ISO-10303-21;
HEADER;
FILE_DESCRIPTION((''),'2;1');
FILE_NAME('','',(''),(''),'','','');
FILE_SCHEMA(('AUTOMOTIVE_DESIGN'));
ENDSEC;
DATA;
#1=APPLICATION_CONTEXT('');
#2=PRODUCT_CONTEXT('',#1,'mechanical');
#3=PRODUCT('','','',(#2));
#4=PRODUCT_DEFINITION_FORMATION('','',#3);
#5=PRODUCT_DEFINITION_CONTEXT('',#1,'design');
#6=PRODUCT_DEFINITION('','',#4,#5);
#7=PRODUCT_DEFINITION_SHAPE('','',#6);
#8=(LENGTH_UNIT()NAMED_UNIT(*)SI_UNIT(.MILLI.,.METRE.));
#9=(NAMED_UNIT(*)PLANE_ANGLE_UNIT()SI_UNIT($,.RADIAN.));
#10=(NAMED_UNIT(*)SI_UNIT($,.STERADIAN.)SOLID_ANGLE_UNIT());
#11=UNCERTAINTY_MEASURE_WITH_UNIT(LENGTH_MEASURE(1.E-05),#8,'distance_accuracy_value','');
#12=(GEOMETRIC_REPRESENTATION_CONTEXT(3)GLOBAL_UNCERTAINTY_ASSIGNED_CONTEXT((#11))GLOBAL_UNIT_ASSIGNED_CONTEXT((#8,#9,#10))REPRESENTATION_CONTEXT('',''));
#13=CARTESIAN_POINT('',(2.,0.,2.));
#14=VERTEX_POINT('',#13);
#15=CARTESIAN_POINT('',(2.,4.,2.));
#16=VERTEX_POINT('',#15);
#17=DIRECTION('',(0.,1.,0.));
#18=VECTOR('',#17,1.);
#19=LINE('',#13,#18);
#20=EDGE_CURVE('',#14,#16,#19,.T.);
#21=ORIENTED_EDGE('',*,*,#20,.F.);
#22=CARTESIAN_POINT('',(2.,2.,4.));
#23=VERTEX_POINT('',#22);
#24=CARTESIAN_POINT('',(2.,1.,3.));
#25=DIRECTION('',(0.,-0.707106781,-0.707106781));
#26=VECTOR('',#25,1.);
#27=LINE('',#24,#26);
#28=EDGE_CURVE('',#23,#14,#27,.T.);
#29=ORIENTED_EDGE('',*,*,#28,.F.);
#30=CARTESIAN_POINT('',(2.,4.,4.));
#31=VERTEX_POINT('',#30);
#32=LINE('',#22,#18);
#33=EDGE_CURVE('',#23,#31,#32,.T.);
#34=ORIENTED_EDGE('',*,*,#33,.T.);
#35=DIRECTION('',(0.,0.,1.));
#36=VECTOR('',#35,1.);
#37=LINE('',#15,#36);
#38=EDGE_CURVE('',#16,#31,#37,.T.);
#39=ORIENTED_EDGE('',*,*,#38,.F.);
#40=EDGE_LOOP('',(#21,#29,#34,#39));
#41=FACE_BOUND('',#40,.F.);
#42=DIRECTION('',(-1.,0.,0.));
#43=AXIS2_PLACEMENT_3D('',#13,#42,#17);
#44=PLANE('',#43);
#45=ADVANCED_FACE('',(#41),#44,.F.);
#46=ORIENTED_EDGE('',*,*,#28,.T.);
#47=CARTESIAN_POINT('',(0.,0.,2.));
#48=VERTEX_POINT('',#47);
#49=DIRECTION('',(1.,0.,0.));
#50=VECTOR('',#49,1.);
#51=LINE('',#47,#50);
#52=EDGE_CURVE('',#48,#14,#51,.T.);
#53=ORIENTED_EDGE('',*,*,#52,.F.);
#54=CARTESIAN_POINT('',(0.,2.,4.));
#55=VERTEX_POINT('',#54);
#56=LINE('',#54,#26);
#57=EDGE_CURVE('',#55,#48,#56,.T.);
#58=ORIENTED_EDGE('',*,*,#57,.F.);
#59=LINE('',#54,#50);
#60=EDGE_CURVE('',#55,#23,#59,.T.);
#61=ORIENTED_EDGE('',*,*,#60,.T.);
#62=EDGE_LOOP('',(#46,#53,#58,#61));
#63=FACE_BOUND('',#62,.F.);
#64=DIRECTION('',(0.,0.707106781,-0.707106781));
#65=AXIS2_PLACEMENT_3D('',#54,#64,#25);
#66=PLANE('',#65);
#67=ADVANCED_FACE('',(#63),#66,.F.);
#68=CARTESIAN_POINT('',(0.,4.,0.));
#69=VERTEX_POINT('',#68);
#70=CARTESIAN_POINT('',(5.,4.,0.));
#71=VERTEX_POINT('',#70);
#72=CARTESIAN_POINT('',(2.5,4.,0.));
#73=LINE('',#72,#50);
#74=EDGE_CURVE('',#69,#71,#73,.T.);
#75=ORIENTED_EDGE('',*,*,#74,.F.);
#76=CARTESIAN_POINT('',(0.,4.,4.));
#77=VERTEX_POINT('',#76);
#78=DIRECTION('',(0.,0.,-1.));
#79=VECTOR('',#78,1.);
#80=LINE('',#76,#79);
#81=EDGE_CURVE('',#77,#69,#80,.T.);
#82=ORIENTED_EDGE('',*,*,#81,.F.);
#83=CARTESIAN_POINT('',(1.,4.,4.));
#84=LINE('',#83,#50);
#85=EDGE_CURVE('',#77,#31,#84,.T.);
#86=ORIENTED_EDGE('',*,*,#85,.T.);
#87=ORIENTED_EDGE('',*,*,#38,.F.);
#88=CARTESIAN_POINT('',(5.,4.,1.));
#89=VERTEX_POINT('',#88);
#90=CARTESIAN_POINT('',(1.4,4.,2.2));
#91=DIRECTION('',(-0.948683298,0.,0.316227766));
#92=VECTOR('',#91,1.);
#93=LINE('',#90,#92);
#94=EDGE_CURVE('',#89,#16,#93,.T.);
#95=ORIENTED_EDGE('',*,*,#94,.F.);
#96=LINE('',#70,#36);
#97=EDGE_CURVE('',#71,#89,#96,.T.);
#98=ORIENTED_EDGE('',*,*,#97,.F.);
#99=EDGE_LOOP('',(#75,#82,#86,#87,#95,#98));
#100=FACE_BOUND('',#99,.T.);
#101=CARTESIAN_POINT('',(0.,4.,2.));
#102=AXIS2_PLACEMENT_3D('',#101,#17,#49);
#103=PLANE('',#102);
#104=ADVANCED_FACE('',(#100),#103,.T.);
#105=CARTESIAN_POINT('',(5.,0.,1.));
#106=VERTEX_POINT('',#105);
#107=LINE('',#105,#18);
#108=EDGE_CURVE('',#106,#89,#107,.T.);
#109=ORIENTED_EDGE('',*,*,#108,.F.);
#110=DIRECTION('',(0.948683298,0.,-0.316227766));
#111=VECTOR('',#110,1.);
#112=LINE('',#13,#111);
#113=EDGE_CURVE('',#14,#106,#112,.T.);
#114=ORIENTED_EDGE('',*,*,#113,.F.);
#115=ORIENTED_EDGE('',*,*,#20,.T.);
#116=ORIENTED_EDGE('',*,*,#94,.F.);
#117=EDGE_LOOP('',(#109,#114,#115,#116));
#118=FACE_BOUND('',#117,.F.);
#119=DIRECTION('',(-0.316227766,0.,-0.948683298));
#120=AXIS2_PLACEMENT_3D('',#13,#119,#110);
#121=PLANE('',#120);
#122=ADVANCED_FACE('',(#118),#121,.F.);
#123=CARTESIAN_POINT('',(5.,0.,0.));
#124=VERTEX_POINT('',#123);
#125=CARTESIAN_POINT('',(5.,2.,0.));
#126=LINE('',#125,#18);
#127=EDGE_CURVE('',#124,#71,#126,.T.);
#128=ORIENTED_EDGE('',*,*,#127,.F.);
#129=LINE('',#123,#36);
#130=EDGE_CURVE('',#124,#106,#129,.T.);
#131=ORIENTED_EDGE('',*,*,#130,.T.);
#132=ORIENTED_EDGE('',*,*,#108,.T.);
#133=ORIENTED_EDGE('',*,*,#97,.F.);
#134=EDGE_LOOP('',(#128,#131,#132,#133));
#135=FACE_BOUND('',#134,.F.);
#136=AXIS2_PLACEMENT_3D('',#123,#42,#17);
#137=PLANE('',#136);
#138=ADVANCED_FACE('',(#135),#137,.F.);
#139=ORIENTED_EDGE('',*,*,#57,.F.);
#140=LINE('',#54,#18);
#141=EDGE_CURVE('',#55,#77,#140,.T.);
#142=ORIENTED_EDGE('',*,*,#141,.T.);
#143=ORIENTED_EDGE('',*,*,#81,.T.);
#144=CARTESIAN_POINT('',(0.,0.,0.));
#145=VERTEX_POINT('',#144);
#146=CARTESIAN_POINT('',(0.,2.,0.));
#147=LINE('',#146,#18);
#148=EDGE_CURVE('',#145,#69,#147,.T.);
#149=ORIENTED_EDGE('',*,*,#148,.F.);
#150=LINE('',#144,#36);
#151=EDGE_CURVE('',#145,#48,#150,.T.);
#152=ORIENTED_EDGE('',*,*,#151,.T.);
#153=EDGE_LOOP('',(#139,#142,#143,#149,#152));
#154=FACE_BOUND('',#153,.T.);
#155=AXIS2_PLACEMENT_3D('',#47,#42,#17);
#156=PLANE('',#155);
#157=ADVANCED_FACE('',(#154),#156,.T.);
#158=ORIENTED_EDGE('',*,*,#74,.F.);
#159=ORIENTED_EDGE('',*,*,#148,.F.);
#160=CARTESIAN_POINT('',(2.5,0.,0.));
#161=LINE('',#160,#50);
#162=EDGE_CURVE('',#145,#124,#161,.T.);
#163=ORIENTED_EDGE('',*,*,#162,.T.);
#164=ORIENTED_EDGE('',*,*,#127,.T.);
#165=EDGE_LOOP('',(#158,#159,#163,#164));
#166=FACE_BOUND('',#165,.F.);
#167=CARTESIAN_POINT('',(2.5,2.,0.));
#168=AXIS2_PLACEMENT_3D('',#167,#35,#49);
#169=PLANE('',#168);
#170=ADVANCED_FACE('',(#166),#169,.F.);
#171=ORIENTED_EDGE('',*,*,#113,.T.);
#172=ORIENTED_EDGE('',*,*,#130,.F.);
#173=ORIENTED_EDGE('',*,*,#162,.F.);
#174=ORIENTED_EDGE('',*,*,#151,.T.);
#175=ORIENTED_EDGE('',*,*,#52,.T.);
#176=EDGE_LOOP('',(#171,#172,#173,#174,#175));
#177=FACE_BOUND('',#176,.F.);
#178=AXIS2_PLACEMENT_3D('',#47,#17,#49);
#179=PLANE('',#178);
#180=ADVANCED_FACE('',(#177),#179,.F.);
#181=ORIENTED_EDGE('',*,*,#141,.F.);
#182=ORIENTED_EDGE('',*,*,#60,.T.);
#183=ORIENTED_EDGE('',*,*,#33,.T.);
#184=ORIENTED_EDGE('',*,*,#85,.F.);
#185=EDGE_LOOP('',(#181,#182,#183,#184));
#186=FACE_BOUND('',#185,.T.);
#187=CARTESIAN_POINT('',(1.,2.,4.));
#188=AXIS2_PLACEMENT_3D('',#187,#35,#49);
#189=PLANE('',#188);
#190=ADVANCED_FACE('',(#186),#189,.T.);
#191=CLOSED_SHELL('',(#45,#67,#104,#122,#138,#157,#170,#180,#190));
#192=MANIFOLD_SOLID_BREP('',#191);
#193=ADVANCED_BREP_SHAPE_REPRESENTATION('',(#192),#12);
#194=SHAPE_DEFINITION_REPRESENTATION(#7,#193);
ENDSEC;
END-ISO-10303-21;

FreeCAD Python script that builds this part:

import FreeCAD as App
import Part
import Sketcher

V = App.Vector
Q = App.Units.Quantity


def add_polygon(sketch, points):
    """Adds a closed chain of lines whose ends are joined by coincident constraints."""
    first, n = sketch.GeometryCount, len(points)
    for a, b in zip(points, points[1:] + points[:1]):
        sketch.addGeometry(Part.LineSegment(App.Vector(*a, 0), App.Vector(*b, 0)), False)
    for i in range(n):
        sketch.addConstraint(Sketcher.Constraint("Coincident", first + i, 2, first + (i + 1) % n, 1))

doc = App.newDocument("Part")
body = doc.addObject("PartDesign::Body", "Body")

sketch1 = doc.addObject("Sketcher::SketchObject", "Sketch")
body.addObject(sketch1)
sketch1.AttachmentSupport = (doc.XY_Plane, [""])
sketch1.MapMode = "FlatFace"
add_polygon(sketch1, [(0, 4), (0, 0), (5, 0), (5, 4)])
sketch1.addConstraint(Sketcher.Constraint("Vertical", 0))
sketch1.addConstraint(Sketcher.Constraint("Horizontal", 1))
sketch1.addConstraint(Sketcher.Constraint("Vertical", 2))
sketch1.addConstraint(Sketcher.Constraint("Horizontal", 3))
sketch1.addConstraint(Sketcher.Constraint("Coincident", 0, 2, -1, 1))
sketch1.addConstraint(Sketcher.Constraint("DistanceX", 1, 1, 1, 2, Q("5 mm")))
sketch1.addConstraint(Sketcher.Constraint("DistanceY", 0, 2, 0, 1, Q("4 mm")))
pad1 = doc.addObject("PartDesign::Pad", "Pad")
body.addObject(pad1)
pad1.Profile = sketch1
pad1.Length = 2

sketch2 = doc.addObject("Sketcher::SketchObject", "Sketch001")
body.addObject(sketch2)
sketch2.AttachmentSupport = (doc.XZ_Plane, [""])
sketch2.MapMode = "FlatFace"
add_polygon(sketch2, [(5, 1), (5, 2), (2, 2)])
sketch2.addConstraint(Sketcher.Constraint("Vertical", 0))
sketch2.addConstraint(Sketcher.Constraint("Horizontal", 1))
sketch2.addConstraint(Sketcher.Constraint("DistanceX", 1, 2, 1, 1, Q("3 mm")))
sketch2.addConstraint(Sketcher.Constraint("DistanceY", 0, 1, 0, 2, Q("1 mm")))
sketch2.addConstraint(Sketcher.Constraint("DistanceX", -1, 1, 0, 2, Q("5 mm")))
sketch2.addConstraint(Sketcher.Constraint("DistanceY", -1, 1, 0, 2, Q("2 mm")))
pocket1 = doc.addObject("PartDesign::Pocket", "Pocket")
body.addObject(pocket1)
pocket1.Profile = sketch2
pocket1.Length = 25

sketch3 = doc.addObject("Sketcher::SketchObject", "Sketch002")
body.addObject(sketch3)
sketch3.AttachmentSupport = (doc.XY_Plane, [""])
sketch3.MapMode = "FlatFace"
sketch3.AttachmentOffset = App.Placement(V(0, 0, 2), App.Rotation())
add_polygon(sketch3, [(0, 4), (0, 0), (2, 0), (2, 4)])
sketch3.addConstraint(Sketcher.Constraint("Vertical", 0))
sketch3.addConstraint(Sketcher.Constraint("Horizontal", 1))
sketch3.addConstraint(Sketcher.Constraint("Vertical", 2))
sketch3.addConstraint(Sketcher.Constraint("Horizontal", 3))
sketch3.addConstraint(Sketcher.Constraint("Coincident", 0, 2, -1, 1))
sketch3.addConstraint(Sketcher.Constraint("DistanceX", 1, 1, 1, 2, Q("2 mm")))
sketch3.addConstraint(Sketcher.Constraint("DistanceY", 0, 2, 0, 1, Q("4 mm")))
pad2 = doc.addObject("PartDesign::Pad", "Pad001")
body.addObject(pad2)
pad2.Profile = sketch3
pad2.Length = 2

sketch4 = doc.addObject("Sketcher::SketchObject", "Sketch003")
body.addObject(sketch4)
sketch4.AttachmentSupport = (doc.YZ_Plane, [""])
sketch4.MapMode = "FlatFace"
add_polygon(sketch4, [(0, 4), (2, 4), (0, 2)])
sketch4.addConstraint(Sketcher.Constraint("Horizontal", 0))
sketch4.addConstraint(Sketcher.Constraint("Vertical", 2))
sketch4.addConstraint(Sketcher.Constraint("PointOnObject", 1, 2, -2))
sketch4.addConstraint(Sketcher.Constraint("Equal", 0, 2))
sketch4.addConstraint(Sketcher.Constraint("DistanceX", 0, 1, 0, 2, Q("2 mm")))
sketch4.addConstraint(Sketcher.Constraint("DistanceY", -1, 1, 0, 2, Q("4 mm")))
pocket2 = doc.addObject("PartDesign::Pocket", "Pocket001")
body.addObject(pocket2)
pocket2.Profile = sketch4
pocket2.Length = 25
pocket2.Reversed = True

doc.recompute()
